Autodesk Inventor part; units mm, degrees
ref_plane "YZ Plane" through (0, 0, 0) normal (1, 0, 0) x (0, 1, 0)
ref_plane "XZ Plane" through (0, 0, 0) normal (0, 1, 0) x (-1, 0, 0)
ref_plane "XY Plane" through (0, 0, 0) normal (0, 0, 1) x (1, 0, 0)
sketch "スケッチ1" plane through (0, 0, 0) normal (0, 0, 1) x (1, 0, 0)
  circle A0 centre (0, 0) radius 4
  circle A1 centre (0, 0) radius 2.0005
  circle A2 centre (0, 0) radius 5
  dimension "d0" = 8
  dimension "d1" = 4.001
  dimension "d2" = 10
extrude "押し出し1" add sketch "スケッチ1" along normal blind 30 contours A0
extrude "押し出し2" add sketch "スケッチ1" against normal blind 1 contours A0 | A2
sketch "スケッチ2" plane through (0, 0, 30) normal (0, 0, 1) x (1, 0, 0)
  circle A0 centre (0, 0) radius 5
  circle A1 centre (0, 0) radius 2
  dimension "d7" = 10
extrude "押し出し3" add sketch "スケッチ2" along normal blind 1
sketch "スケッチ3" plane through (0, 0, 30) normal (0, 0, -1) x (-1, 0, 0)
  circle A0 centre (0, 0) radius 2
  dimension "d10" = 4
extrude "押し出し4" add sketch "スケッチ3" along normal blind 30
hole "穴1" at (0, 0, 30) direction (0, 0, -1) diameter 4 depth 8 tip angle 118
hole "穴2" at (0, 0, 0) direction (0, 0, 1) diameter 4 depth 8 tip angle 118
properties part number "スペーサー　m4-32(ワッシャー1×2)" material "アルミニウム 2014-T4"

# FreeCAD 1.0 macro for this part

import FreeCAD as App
import Part
import Sketcher

doc = App.newDocument("Part")
params = doc.addObject("Spreadsheet::Sheet", "Params")
for row, (alias, value) in enumerate([
    ("sketch1_diameter", "8 mm"),
    ("pad1_length", "30 mm"),
    ("sketch2_diameter", "10 mm"),
    ("pad2_length", "1 mm"),
    ("sketch3_diameter", "10 mm"),
    ("sketch3_diameter2", "4 mm"),
    ("pad3_length", "1 mm"),
    ("sketch4_diameter", "4 mm"),
    ("pad4_length", "30 mm"),
    ("sketch5_diameter", "4 mm"),
    ("hole_diameter", "4 mm"),
    ("hole_depth", "8 mm"),
    ("sketch6_diameter", "4 mm"),
    ("hole2_diameter", "4 mm"),
    ("hole2_depth", "8 mm"),
], start=1):
    params.set(f"A{row}", alias)
    params.set(f"B{row}", "=" + value)
    params.setAlias(f"B{row}", alias)

body = doc.addObject("PartDesign::Body", "Body")
body.AllowCompound = True

# Sketch on XY plane
sketch1 = body.newObject("Sketcher::SketchObject", "Sketch")
sketch1.AttachmentSupport = (doc.getObject("XY_Plane"), [""])
sketch1.MapMode = "FlatFace"
sketch1.addGeometry([
    Part.Circle(App.Vector(0, 0, 0), App.Vector(0, 0, 1), 4),
    Part.Circle(App.Vector(0, 0, 0), App.Vector(0, 0, 1), 2),
], False)
sketch1.addConstraint([
    Sketcher.Constraint("Coincident", 0, 3, -1, 1),
    Sketcher.Constraint("Coincident", 1, 3, -1, 1),
    Sketcher.Constraint("Diameter", 0, 8.0),
    Sketcher.Constraint("Diameter", 1, 4.001),
])
sketch1.setExpression("Constraints[2]", "Params.sketch1_diameter")
pad1 = body.newObject("PartDesign::Pad", "Pad")
pad1.Profile = sketch1
pad1.setExpression("Length", "Params.pad1_length")

# Sketch on XY plane
sketch2 = body.newObject("Sketcher::SketchObject", "Sketch001")
sketch2.AttachmentSupport = (doc.getObject("XY_Plane"), [""])
sketch2.MapMode = "FlatFace"
sketch2.addGeometry([
    Part.Circle(App.Vector(0, 0, 0), App.Vector(0, 0, 1), 5),
    Part.Circle(App.Vector(0, 0, 0), App.Vector(0, 0, 1), 2),
], False)
sketch2.addConstraint([
    Sketcher.Constraint("Coincident", 0, 3, -1, 1),
    Sketcher.Constraint("Coincident", 1, 3, -1, 1),
    Sketcher.Constraint("Diameter", 0, 10.0),
    Sketcher.Constraint("Diameter", 1, 4.001),
])
sketch2.setExpression("Constraints[2]", "Params.sketch2_diameter")
pad2 = body.newObject("PartDesign::Pad", "Pad001")
pad2.Profile = sketch2
pad2.setExpression("Length", "Params.pad2_length")
pad2.Reversed = True

# Sketch on XY plane
sketch3 = body.newObject("Sketcher::SketchObject", "Sketch002")
sketch3.AttachmentSupport = (doc.getObject("XY_Plane"), [""])
sketch3.MapMode = "FlatFace"
sketch3.AttachmentOffset = App.Placement(App.Vector(0, 0, 30), App.Rotation())
sketch3.addGeometry([
    Part.Circle(App.Vector(0, 0, 0), App.Vector(0, 0, 1), 5),
    Part.Circle(App.Vector(0, 0, 0), App.Vector(0, 0, 1), 2),
], False)
sketch3.addConstraint([
    Sketcher.Constraint("Coincident", 0, 3, -1, 1),
    Sketcher.Constraint("Coincident", 1, 3, -1, 1),
    Sketcher.Constraint("Diameter", 0, 10.0),
    Sketcher.Constraint("Diameter", 1, 4.0),
])
sketch3.setExpression("Constraints[2]", "Params.sketch3_diameter")
sketch3.setExpression("Constraints[3]", "Params.sketch3_diameter2")
pad3 = body.newObject("PartDesign::Pad", "Pad002")
pad3.Profile = sketch3
pad3.setExpression("Length", "Params.pad3_length")

# Sketch on XY plane
sketch4 = body.newObject("Sketcher::SketchObject", "Sketch003")
sketch4.AttachmentSupport = (doc.getObject("XY_Plane"), [""])
sketch4.MapMode = "FlatFace"
sketch4.AttachmentOffset = App.Placement(App.Vector(0, 0, 30), App.Rotation())
sketch4.addGeometry(Part.Circle(App.Vector(0, 0, 0), App.Vector(0, 0, 1), 2), False)
sketch4.addConstraint([
    Sketcher.Constraint("Coincident", 0, 3, -1, 1),
    Sketcher.Constraint("Diameter", 0, 4.0),
])
sketch4.setExpression("Constraints[1]", "Params.sketch4_diameter")
pad4 = body.newObject("PartDesign::Pad", "Pad003")
pad4.Profile = sketch4
pad4.setExpression("Length", "Params.pad4_length")
pad4.Reversed = True

# Sketch on XY plane
sketch5 = body.newObject("Sketcher::SketchObject", "Sketch004")
sketch5.AttachmentSupport = (doc.getObject("XY_Plane"), [""])
sketch5.MapMode = "FlatFace"
sketch5.AttachmentOffset = App.Placement(App.Vector(0, 0, 30), App.Rotation())
sketch5.addGeometry(Part.Circle(App.Vector(0, 0, 0), App.Vector(0, 0, 1), 2), False)
sketch5.addConstraint([
    Sketcher.Constraint("Coincident", 0, 3, -1, 1),
    Sketcher.Constraint("Diameter", 0, 4.0),
])
sketch5.setExpression("Constraints[1]", "Params.sketch5_diameter")
doc.recompute()
hole = body.newObject("PartDesign::Hole", "Hole")
hole.Profile = sketch5
hole.ThreadType = "None"
hole.setExpression("Diameter", "Params.hole_diameter")
hole.DepthType = "Dimension"
hole.setExpression("Depth", "Params.hole_depth")
hole.DrillPoint = "Angled"
hole.DrillPointAngle = 118

# Sketch on XY plane
sketch6 = body.newObject("Sketcher::SketchObject", "Sketch005")
sketch6.AttachmentSupport = (doc.getObject("XY_Plane"), [""])
sketch6.MapMode = "FlatFace"
sketch6.addGeometry(Part.Circle(App.Vector(0, 0, 0), App.Vector(0, 0, 1), 2), False)
sketch6.addConstraint([
    Sketcher.Constraint("Coincident", 0, 3, -1, 1),
    Sketcher.Constraint("Diameter", 0, 4.0),
])
sketch6.setExpression("Constraints[1]", "Params.sketch6_diameter")
doc.recompute()
hole2 = body.newObject("PartDesign::Hole", "Hole001")
hole2.Profile = sketch6
hole2.ThreadType = "None"
hole2.setExpression("Diameter", "Params.hole2_diameter")
hole2.DepthType = "Dimension"
hole2.setExpression("Depth", "Params.hole2_depth")
hole2.DrillPoint = "Angled"
hole2.DrillPointAngle = 118
hole2.Reversed = True

doc.recompute()
